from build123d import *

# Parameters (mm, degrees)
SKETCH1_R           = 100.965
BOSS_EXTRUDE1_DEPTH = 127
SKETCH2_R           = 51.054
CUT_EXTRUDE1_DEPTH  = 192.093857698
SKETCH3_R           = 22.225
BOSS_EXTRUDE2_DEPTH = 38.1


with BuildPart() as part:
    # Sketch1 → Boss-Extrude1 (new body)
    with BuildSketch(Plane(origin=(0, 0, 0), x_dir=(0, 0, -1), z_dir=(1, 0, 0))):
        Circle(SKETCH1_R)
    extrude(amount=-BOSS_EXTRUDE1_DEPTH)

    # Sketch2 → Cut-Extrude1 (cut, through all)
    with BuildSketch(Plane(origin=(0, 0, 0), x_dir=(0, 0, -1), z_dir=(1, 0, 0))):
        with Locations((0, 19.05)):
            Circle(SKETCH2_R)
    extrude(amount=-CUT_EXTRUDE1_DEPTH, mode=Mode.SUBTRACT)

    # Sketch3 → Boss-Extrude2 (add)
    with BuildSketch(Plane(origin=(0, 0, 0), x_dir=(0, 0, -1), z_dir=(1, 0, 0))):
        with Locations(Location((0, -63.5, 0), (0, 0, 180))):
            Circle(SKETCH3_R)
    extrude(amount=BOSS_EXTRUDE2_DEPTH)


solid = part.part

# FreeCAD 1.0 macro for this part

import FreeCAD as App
import Part
import Sketcher
from FreeCAD import Vector
Q = App.Units.Quantity

doc = App.newDocument("Part")
params = doc.addObject("Spreadsheet::Sheet", "Params")
for row, (alias, value) in enumerate([
    ("sketch1_diameter", "7.95 in"),
    ("pad1_length", "5 in"),
    ("sketch2_diameter", "4.02 in"),
    ("sketch3_diameter", "1.75 in"),
    ("pad2_length", "1.5 in"),
], start=1):
    params.set(f"A{row}", alias)
    params.set(f"B{row}", "=" + value)
    params.setAlias(f"B{row}", alias)

body = doc.addObject("PartDesign::Body", "Body")

sketch1 = body.newObject("Sketcher::SketchObject", "Sketch")
sketch1.AttachmentSupport = (doc.getObject("YZ_Plane"), [""])
sketch1.MapMode = "FlatFace"
sketch1.addGeometry(Part.Circle(Vector(0, 0, 0), Vector(0, 0, 1), 101), False)
sketch1.addConstraint([
    Sketcher.Constraint("Coincident", 0, 3, -1, 1),
    Sketcher.Constraint("Diameter", 0, Q("7.95 in")),
])
sketch1.setExpression("Constraints[1]", "Params.sketch1_diameter")
pad1 = body.newObject("PartDesign::Pad", "Pad")
pad1.Profile = sketch1
pad1.setExpression("Length", "Params.pad1_length")
pad1.Reversed = True

sketch2 = body.newObject("Sketcher::SketchObject", "Sketch001")
sketch2.AttachmentSupport = (doc.getObject("YZ_Plane"), [""])
sketch2.MapMode = "FlatFace"
sketch2.addGeometry(Part.Circle(Vector(19, 0, 0), Vector(0, 0, 1), 51), False)
sketch2.addConstraint([
    Sketcher.Constraint("PointOnObject", 0, 3, -1),
    Sketcher.Constraint("Diameter", 0, Q("4.02 in")),
    Sketcher.Constraint("DistanceX", -1, 1, 0, 3, Q("0.75 in")),
])
sketch2.setExpression("Constraints[1]", "Params.sketch2_diameter")
pocket1 = body.newObject("PartDesign::Pocket", "Pocket")
pocket1.Profile = sketch2
pocket1.Type = "ThroughAll"

sketch3 = body.newObject("Sketcher::SketchObject", "Sketch002")
sketch3.AttachmentSupport = (doc.getObject("YZ_Plane"), [""])
sketch3.MapMode = "FlatFace"
sketch3.addGeometry(Part.Circle(Vector(-64, 0, 0), Vector(0, 0, 1), 22), False)
sketch3.addConstraint([
    Sketcher.Constraint("PointOnObject", 0, 3, -1),
    Sketcher.Constraint("Diameter", 0, Q("1.75 in")),
    Sketcher.Constraint("DistanceX", 0, 3, -1, 1, Q("2.5 in")),
])
sketch3.setExpression("Constraints[1]", "Params.sketch3_diameter")
pad2 = body.newObject("PartDesign::Pad", "Pad001")
pad2.Profile = sketch3
pad2.setExpression("Length", "Params.pad2_length")

doc.recompute()
